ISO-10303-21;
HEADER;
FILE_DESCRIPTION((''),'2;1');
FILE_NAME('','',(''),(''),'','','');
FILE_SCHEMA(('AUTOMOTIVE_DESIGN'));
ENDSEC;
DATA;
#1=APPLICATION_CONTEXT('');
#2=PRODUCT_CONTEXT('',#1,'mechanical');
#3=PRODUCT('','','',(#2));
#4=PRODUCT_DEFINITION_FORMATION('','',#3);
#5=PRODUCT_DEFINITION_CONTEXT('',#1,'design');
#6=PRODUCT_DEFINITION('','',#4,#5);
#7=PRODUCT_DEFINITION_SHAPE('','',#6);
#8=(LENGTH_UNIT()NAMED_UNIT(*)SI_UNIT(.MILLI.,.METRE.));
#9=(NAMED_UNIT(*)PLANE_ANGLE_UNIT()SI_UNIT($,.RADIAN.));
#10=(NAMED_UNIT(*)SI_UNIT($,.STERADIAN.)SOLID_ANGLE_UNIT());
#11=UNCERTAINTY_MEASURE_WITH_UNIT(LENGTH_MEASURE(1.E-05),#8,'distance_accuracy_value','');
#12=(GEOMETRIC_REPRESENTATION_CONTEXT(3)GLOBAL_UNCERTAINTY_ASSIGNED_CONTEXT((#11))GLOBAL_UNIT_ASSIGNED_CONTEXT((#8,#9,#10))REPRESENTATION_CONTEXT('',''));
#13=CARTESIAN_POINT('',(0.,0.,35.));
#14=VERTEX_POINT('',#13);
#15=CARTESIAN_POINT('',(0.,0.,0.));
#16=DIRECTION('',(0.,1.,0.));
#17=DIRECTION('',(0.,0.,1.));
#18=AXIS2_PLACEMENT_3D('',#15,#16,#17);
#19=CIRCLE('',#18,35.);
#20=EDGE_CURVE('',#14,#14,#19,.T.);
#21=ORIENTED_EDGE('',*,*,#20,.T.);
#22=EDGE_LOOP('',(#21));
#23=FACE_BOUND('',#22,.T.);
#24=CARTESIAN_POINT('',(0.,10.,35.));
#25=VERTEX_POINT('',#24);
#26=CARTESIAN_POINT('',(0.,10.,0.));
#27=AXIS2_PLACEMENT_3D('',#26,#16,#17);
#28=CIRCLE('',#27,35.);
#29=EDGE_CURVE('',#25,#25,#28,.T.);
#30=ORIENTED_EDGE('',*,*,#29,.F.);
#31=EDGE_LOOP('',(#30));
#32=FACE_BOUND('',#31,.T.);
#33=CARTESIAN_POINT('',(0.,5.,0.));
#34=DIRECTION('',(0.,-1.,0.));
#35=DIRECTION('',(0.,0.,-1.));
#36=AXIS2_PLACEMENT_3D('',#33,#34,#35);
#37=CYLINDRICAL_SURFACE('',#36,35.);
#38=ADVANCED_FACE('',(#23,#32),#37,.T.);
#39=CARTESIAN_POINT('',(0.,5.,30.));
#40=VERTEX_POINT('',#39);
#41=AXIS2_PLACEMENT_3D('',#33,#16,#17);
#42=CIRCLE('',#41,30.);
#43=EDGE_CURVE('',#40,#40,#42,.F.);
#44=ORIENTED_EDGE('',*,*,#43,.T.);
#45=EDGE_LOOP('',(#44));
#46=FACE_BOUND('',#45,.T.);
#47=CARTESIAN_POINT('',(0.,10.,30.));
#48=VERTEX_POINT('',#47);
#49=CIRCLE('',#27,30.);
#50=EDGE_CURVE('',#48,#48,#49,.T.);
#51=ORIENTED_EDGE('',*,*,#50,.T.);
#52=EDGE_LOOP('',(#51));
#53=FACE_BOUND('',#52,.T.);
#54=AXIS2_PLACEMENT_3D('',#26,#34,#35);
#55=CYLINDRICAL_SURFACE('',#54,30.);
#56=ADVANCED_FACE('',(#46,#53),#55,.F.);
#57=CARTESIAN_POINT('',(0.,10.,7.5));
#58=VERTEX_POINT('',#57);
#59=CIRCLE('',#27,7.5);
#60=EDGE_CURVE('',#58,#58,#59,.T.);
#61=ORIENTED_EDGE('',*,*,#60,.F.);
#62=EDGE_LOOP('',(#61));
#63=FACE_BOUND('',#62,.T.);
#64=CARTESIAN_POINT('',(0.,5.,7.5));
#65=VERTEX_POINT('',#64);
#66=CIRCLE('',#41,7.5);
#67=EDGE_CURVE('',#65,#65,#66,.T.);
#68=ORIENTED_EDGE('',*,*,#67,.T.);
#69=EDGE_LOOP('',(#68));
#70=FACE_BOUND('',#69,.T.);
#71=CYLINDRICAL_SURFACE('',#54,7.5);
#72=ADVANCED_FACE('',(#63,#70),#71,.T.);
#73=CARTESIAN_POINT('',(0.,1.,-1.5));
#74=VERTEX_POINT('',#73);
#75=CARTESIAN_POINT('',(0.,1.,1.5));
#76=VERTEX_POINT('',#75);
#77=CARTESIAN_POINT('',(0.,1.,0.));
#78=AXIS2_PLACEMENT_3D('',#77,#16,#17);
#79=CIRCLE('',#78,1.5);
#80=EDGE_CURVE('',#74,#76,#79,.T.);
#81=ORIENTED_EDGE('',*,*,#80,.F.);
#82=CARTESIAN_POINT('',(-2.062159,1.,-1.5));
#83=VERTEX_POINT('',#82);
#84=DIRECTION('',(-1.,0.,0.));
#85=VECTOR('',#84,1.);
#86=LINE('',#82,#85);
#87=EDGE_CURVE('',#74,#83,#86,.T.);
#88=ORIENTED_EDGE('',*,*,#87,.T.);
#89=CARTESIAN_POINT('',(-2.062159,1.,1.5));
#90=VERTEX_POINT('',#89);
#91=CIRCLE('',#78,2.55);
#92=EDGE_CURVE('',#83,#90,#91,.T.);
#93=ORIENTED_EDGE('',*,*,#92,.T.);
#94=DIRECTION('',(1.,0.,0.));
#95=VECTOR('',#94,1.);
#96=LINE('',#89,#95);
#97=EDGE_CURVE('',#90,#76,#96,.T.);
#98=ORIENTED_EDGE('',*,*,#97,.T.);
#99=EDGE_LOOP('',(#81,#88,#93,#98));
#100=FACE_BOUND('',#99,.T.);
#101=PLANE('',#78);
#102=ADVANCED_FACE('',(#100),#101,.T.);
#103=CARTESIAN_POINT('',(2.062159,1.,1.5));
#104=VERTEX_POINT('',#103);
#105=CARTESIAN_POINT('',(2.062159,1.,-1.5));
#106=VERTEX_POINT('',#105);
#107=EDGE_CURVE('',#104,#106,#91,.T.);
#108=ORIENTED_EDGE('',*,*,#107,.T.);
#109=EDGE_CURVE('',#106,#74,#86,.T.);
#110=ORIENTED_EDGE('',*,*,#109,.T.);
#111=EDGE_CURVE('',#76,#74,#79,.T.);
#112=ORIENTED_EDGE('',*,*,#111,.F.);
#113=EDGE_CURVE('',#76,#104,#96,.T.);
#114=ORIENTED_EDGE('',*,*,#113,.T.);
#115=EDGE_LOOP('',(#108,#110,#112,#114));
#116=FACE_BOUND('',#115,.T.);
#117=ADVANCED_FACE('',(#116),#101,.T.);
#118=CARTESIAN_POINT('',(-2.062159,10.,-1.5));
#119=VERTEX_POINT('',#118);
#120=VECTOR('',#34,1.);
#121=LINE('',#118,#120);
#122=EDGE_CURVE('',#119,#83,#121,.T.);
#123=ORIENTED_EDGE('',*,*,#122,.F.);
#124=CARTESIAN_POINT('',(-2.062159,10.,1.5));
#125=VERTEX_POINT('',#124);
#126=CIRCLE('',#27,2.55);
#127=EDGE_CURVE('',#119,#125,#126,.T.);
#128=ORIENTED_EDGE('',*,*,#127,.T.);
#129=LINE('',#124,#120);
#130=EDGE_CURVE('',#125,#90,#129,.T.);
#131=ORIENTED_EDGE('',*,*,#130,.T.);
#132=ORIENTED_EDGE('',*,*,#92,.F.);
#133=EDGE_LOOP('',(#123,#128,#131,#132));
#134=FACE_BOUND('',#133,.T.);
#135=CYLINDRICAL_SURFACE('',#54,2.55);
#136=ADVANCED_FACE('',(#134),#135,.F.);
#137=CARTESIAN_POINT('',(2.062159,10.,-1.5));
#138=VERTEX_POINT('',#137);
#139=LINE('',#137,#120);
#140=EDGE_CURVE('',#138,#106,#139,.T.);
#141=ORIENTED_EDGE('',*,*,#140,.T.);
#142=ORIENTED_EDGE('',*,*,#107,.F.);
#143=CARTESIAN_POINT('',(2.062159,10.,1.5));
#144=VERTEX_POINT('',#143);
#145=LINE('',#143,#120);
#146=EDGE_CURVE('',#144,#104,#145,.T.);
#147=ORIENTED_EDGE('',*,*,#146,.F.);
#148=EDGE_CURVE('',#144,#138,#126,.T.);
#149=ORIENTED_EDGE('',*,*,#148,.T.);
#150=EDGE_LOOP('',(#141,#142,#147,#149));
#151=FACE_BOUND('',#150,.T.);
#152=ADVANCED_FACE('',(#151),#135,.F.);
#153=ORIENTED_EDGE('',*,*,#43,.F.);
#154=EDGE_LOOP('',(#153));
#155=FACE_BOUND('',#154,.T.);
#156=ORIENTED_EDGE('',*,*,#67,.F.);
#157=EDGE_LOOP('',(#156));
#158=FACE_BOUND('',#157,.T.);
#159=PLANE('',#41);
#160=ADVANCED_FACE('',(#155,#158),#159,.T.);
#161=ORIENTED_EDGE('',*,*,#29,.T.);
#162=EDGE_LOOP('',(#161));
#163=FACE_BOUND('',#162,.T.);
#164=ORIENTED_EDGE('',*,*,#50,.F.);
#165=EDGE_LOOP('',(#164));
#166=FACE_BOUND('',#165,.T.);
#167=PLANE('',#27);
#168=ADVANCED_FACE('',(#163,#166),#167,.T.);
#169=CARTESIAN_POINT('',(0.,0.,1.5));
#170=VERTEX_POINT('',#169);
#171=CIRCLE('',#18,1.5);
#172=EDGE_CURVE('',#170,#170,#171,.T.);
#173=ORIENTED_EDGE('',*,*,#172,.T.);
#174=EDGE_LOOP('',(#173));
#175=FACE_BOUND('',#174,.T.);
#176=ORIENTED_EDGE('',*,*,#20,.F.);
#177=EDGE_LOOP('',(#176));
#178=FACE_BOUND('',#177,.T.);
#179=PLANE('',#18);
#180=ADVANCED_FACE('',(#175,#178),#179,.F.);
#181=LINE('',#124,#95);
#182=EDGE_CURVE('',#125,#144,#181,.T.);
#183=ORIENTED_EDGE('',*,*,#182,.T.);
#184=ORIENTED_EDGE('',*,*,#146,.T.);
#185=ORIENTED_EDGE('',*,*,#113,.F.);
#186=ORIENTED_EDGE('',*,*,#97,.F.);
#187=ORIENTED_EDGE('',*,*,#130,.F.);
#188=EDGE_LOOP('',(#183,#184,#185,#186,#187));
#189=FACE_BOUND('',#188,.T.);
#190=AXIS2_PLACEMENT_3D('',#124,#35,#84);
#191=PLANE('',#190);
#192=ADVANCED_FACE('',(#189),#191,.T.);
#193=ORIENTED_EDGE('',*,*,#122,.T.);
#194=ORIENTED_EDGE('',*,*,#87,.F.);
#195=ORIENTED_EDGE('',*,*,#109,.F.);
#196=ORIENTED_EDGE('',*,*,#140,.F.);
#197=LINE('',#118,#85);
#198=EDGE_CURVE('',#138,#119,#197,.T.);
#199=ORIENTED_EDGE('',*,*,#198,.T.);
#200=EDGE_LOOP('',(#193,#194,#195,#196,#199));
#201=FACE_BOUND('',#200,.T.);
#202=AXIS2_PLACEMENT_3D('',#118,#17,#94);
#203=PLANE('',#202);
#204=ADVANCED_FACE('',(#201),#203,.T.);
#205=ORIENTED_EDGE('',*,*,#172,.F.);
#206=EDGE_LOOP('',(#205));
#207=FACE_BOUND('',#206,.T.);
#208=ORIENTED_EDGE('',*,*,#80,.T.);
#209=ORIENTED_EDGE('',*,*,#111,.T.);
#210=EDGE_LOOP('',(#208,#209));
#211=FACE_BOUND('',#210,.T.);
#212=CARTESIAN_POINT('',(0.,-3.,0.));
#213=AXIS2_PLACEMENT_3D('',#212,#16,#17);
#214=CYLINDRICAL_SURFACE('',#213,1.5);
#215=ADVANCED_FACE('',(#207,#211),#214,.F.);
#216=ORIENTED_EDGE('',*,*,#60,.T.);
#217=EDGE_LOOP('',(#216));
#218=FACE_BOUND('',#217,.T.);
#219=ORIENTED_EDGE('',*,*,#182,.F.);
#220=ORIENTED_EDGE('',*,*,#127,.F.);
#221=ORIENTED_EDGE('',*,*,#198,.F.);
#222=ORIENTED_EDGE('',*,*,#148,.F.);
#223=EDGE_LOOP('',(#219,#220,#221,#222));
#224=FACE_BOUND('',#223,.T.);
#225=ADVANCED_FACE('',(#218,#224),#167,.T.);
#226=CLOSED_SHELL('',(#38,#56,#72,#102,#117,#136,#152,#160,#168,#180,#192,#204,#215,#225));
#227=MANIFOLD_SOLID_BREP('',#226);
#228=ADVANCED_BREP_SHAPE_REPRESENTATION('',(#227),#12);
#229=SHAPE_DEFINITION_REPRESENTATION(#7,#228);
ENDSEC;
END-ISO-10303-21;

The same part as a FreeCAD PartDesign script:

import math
import FreeCAD as App
import Part
import Sketcher

doc = App.newDocument("Part")
body = doc.addObject("PartDesign::Body", "Body")

sketch1 = body.newObject("Sketcher::SketchObject", "Sketch")
sketch1.AttachmentSupport = (doc.getObject("XZ_Plane"), [""])
sketch1.MapMode = "FlatFace"
sketch1.addGeometry(Part.Circle(App.Vector(0, 0, 0), App.Vector(0, 0, 1), 35), False)
sketch1.addConstraint(Sketcher.Constraint("Coincident", 0, 3, -1, 1))
sketch1.addConstraint(Sketcher.Constraint("Diameter", 0, 70.0))
pad1 = body.newObject("PartDesign::Pad", "Pad")
pad1.Profile = sketch1
pad1.Length = 5
pad1.Reversed = True

sketch2 = body.newObject("Sketcher::SketchObject", "Sketch001")
sketch2.AttachmentSupport = (doc.getObject("XZ_Plane"), [""])
sketch2.MapMode = "FlatFace"
sketch2.AttachmentOffset = App.Placement(App.Vector(0, 0, -5), App.Rotation())
sketch2.addGeometry(Part.Circle(App.Vector(0, 0, 0), App.Vector(0, 0, 1), 7.5), False)
sketch2.addGeometry(Part.ArcOfCircle(Part.Circle(App.Vector(0, 0, 0), App.Vector(0, 0, 1), 2.55), math.radians(143.968121), math.radians(216.031879)), False)
sketch2.addGeometry(Part.LineSegment(App.Vector(-2.062159, -1.5, 0), App.Vector(2.062159, -1.5, 0)), False)
sketch2.addGeometry(Part.ArcOfCircle(Part.Circle(App.Vector(0, 0, 0), App.Vector(0, 0, 1), 2.55), math.radians(-36.031879), math.radians(36.031879)), False)
sketch2.addGeometry(Part.LineSegment(App.Vector(2.062159, 1.5, 0), App.Vector(-2.062159, 1.5, 0)), False)
sketch2.addConstraint(Sketcher.Constraint("Coincident", 1, 2, 2, 1))
sketch2.addConstraint(Sketcher.Constraint("Coincident", 2, 2, 3, 1))
sketch2.addConstraint(Sketcher.Constraint("Coincident", 3, 2, 4, 1))
sketch2.addConstraint(Sketcher.Constraint("Coincident", 4, 2, 1, 1))
sketch2.addConstraint(Sketcher.Constraint("Horizontal", 2))
sketch2.addConstraint(Sketcher.Constraint("Horizontal", 4))
sketch2.addConstraint(Sketcher.Constraint("Coincident", 0, 3, -1, 1))
sketch2.addConstraint(Sketcher.Constraint("Coincident", 1, 3, -1, 1))
sketch2.addConstraint(Sketcher.Constraint("Coincident", 3, 3, -1, 1))
sketch2.addConstraint(Sketcher.Constraint("Equal", 1, 3))
sketch2.addConstraint(Sketcher.Constraint("Vertical", 2, 2, 3, 2))
sketch2.addConstraint(Sketcher.Constraint("Diameter", 0, 15.0))
sketch2.addConstraint(Sketcher.Constraint("Radius", 1, 2.55))
sketch2.addConstraint(Sketcher.Constraint("DistanceY", 2, 2, 3, 2, 3.0))
pad2 = body.newObject("PartDesign::Pad", "Pad001")
pad2.Profile = sketch2
pad2.Length = 5
pad2.Reversed = True

sketch3 = body.newObject("Sketcher::SketchObject", "Sketch002")
sketch3.AttachmentSupport = (doc.getObject("XZ_Plane"), [""])
sketch3.MapMode = "FlatFace"
sketch3.AttachmentOffset = App.Placement(App.Vector(0, 0, -1), App.Rotation())
sketch3.addGeometry(Part.LineSegment(App.Vector(2.062159, -1.5, 0), App.Vector(-2.062159, -1.5, 0)), False)
sketch3.addGeometry(Part.ArcOfCircle(Part.Circle(App.Vector(0, 0, 0), App.Vector(0, 0, 1), 2.55), math.radians(143.968121), math.radians(216.031879)), False)
sketch3.addGeometry(Part.LineSegment(App.Vector(-2.062159, 1.5, 0), App.Vector(2.062159, 1.5, 0)), False)
sketch3.addGeometry(Part.ArcOfCircle(Part.Circle(App.Vector(0, 0, 0), App.Vector(0, 0, 1), 2.55), math.radians(-36.031879), math.radians(36.031879)), False)
sketch3.addConstraint(Sketcher.Constraint("Coincident", 0, 2, 1, 2))
sketch3.addConstraint(Sketcher.Constraint("Coincident", 1, 1, 2, 1))
sketch3.addConstraint(Sketcher.Constraint("Coincident", 2, 2, 3, 2))
sketch3.addConstraint(Sketcher.Constraint("Coincident", 3, 1, 0, 1))
sketch3.addConstraint(Sketcher.Constraint("Horizontal", 0))
sketch3.addConstraint(Sketcher.Constraint("Horizontal", 2))
sketch3.addConstraint(Sketcher.Constraint("Coincident", 1, 3, -1, 1))
sketch3.addConstraint(Sketcher.Constraint("Coincident", 3, 3, -1, 1))
sketch3.addConstraint(Sketcher.Constraint("Equal", 1, 3))
sketch3.addConstraint(Sketcher.Constraint("Vertical", 0, 2, 1, 1))
sketch3.addConstraint(Sketcher.Constraint("Radius", 1, 2.55))
sketch3.addConstraint(Sketcher.Constraint("DistanceY", 0, 2, 1, 1, 3.0))
pocket1 = body.newObject("PartDesign::Pocket", "Pocket")
pocket1.Profile = sketch3
pocket1.Length = 4

sketch4 = body.newObject("Sketcher::SketchObject", "Sketch003")
sketch4.AttachmentSupport = (doc.getObject("XZ_Plane"), [""])
sketch4.MapMode = "FlatFace"
sketch4.AttachmentOffset = App.Placement(App.Vector(0, 0, -1), App.Rotation())
sketch4.addGeometry(Part.Circle(App.Vector(0, 0, 0), App.Vector(0, 0, 1), 1.5), False)
sketch4.addConstraint(Sketcher.Constraint("Coincident", 0, 3, -1, 1))
sketch4.addConstraint(Sketcher.Constraint("Diameter", 0, 3.0))
pocket2 = body.newObject("PartDesign::Pocket", "Pocket001")
pocket2.Profile = sketch4
pocket2.Length = 4
pocket2.Reversed = True

sketch5 = body.newObject("Sketcher::SketchObject", "Sketch004")
sketch5.AttachmentSupport = (doc.getObject("XZ_Plane"), [""])
sketch5.MapMode = "FlatFace"
sketch5.AttachmentOffset = App.Placement(App.Vector(0, 0, -5), App.Rotation())
sketch5.addGeometry(Part.Circle(App.Vector(0, 0, 0), App.Vector(0, 0, 1), 35), False)
sketch5.addGeometry(Part.Circle(App.Vector(0, 0, 0), App.Vector(0, 0, 1), 30), False)
sketch5.addConstraint(Sketcher.Constraint("Coincident", 0, 3, -1, 1))
sketch5.addConstraint(Sketcher.Constraint("Coincident", 1, 3, -1, 1))
sketch5.addConstraint(Sketcher.Constraint("Diameter", 0, 70.0))
sketch5.addConstraint(Sketcher.Constraint("Diameter", 1, 60.0))
pad3 = body.newObject("PartDesign::Pad", "Pad002")
pad3.Profile = sketch5
pad3.Length = 5
pad3.Reversed = True

doc.recompute()
